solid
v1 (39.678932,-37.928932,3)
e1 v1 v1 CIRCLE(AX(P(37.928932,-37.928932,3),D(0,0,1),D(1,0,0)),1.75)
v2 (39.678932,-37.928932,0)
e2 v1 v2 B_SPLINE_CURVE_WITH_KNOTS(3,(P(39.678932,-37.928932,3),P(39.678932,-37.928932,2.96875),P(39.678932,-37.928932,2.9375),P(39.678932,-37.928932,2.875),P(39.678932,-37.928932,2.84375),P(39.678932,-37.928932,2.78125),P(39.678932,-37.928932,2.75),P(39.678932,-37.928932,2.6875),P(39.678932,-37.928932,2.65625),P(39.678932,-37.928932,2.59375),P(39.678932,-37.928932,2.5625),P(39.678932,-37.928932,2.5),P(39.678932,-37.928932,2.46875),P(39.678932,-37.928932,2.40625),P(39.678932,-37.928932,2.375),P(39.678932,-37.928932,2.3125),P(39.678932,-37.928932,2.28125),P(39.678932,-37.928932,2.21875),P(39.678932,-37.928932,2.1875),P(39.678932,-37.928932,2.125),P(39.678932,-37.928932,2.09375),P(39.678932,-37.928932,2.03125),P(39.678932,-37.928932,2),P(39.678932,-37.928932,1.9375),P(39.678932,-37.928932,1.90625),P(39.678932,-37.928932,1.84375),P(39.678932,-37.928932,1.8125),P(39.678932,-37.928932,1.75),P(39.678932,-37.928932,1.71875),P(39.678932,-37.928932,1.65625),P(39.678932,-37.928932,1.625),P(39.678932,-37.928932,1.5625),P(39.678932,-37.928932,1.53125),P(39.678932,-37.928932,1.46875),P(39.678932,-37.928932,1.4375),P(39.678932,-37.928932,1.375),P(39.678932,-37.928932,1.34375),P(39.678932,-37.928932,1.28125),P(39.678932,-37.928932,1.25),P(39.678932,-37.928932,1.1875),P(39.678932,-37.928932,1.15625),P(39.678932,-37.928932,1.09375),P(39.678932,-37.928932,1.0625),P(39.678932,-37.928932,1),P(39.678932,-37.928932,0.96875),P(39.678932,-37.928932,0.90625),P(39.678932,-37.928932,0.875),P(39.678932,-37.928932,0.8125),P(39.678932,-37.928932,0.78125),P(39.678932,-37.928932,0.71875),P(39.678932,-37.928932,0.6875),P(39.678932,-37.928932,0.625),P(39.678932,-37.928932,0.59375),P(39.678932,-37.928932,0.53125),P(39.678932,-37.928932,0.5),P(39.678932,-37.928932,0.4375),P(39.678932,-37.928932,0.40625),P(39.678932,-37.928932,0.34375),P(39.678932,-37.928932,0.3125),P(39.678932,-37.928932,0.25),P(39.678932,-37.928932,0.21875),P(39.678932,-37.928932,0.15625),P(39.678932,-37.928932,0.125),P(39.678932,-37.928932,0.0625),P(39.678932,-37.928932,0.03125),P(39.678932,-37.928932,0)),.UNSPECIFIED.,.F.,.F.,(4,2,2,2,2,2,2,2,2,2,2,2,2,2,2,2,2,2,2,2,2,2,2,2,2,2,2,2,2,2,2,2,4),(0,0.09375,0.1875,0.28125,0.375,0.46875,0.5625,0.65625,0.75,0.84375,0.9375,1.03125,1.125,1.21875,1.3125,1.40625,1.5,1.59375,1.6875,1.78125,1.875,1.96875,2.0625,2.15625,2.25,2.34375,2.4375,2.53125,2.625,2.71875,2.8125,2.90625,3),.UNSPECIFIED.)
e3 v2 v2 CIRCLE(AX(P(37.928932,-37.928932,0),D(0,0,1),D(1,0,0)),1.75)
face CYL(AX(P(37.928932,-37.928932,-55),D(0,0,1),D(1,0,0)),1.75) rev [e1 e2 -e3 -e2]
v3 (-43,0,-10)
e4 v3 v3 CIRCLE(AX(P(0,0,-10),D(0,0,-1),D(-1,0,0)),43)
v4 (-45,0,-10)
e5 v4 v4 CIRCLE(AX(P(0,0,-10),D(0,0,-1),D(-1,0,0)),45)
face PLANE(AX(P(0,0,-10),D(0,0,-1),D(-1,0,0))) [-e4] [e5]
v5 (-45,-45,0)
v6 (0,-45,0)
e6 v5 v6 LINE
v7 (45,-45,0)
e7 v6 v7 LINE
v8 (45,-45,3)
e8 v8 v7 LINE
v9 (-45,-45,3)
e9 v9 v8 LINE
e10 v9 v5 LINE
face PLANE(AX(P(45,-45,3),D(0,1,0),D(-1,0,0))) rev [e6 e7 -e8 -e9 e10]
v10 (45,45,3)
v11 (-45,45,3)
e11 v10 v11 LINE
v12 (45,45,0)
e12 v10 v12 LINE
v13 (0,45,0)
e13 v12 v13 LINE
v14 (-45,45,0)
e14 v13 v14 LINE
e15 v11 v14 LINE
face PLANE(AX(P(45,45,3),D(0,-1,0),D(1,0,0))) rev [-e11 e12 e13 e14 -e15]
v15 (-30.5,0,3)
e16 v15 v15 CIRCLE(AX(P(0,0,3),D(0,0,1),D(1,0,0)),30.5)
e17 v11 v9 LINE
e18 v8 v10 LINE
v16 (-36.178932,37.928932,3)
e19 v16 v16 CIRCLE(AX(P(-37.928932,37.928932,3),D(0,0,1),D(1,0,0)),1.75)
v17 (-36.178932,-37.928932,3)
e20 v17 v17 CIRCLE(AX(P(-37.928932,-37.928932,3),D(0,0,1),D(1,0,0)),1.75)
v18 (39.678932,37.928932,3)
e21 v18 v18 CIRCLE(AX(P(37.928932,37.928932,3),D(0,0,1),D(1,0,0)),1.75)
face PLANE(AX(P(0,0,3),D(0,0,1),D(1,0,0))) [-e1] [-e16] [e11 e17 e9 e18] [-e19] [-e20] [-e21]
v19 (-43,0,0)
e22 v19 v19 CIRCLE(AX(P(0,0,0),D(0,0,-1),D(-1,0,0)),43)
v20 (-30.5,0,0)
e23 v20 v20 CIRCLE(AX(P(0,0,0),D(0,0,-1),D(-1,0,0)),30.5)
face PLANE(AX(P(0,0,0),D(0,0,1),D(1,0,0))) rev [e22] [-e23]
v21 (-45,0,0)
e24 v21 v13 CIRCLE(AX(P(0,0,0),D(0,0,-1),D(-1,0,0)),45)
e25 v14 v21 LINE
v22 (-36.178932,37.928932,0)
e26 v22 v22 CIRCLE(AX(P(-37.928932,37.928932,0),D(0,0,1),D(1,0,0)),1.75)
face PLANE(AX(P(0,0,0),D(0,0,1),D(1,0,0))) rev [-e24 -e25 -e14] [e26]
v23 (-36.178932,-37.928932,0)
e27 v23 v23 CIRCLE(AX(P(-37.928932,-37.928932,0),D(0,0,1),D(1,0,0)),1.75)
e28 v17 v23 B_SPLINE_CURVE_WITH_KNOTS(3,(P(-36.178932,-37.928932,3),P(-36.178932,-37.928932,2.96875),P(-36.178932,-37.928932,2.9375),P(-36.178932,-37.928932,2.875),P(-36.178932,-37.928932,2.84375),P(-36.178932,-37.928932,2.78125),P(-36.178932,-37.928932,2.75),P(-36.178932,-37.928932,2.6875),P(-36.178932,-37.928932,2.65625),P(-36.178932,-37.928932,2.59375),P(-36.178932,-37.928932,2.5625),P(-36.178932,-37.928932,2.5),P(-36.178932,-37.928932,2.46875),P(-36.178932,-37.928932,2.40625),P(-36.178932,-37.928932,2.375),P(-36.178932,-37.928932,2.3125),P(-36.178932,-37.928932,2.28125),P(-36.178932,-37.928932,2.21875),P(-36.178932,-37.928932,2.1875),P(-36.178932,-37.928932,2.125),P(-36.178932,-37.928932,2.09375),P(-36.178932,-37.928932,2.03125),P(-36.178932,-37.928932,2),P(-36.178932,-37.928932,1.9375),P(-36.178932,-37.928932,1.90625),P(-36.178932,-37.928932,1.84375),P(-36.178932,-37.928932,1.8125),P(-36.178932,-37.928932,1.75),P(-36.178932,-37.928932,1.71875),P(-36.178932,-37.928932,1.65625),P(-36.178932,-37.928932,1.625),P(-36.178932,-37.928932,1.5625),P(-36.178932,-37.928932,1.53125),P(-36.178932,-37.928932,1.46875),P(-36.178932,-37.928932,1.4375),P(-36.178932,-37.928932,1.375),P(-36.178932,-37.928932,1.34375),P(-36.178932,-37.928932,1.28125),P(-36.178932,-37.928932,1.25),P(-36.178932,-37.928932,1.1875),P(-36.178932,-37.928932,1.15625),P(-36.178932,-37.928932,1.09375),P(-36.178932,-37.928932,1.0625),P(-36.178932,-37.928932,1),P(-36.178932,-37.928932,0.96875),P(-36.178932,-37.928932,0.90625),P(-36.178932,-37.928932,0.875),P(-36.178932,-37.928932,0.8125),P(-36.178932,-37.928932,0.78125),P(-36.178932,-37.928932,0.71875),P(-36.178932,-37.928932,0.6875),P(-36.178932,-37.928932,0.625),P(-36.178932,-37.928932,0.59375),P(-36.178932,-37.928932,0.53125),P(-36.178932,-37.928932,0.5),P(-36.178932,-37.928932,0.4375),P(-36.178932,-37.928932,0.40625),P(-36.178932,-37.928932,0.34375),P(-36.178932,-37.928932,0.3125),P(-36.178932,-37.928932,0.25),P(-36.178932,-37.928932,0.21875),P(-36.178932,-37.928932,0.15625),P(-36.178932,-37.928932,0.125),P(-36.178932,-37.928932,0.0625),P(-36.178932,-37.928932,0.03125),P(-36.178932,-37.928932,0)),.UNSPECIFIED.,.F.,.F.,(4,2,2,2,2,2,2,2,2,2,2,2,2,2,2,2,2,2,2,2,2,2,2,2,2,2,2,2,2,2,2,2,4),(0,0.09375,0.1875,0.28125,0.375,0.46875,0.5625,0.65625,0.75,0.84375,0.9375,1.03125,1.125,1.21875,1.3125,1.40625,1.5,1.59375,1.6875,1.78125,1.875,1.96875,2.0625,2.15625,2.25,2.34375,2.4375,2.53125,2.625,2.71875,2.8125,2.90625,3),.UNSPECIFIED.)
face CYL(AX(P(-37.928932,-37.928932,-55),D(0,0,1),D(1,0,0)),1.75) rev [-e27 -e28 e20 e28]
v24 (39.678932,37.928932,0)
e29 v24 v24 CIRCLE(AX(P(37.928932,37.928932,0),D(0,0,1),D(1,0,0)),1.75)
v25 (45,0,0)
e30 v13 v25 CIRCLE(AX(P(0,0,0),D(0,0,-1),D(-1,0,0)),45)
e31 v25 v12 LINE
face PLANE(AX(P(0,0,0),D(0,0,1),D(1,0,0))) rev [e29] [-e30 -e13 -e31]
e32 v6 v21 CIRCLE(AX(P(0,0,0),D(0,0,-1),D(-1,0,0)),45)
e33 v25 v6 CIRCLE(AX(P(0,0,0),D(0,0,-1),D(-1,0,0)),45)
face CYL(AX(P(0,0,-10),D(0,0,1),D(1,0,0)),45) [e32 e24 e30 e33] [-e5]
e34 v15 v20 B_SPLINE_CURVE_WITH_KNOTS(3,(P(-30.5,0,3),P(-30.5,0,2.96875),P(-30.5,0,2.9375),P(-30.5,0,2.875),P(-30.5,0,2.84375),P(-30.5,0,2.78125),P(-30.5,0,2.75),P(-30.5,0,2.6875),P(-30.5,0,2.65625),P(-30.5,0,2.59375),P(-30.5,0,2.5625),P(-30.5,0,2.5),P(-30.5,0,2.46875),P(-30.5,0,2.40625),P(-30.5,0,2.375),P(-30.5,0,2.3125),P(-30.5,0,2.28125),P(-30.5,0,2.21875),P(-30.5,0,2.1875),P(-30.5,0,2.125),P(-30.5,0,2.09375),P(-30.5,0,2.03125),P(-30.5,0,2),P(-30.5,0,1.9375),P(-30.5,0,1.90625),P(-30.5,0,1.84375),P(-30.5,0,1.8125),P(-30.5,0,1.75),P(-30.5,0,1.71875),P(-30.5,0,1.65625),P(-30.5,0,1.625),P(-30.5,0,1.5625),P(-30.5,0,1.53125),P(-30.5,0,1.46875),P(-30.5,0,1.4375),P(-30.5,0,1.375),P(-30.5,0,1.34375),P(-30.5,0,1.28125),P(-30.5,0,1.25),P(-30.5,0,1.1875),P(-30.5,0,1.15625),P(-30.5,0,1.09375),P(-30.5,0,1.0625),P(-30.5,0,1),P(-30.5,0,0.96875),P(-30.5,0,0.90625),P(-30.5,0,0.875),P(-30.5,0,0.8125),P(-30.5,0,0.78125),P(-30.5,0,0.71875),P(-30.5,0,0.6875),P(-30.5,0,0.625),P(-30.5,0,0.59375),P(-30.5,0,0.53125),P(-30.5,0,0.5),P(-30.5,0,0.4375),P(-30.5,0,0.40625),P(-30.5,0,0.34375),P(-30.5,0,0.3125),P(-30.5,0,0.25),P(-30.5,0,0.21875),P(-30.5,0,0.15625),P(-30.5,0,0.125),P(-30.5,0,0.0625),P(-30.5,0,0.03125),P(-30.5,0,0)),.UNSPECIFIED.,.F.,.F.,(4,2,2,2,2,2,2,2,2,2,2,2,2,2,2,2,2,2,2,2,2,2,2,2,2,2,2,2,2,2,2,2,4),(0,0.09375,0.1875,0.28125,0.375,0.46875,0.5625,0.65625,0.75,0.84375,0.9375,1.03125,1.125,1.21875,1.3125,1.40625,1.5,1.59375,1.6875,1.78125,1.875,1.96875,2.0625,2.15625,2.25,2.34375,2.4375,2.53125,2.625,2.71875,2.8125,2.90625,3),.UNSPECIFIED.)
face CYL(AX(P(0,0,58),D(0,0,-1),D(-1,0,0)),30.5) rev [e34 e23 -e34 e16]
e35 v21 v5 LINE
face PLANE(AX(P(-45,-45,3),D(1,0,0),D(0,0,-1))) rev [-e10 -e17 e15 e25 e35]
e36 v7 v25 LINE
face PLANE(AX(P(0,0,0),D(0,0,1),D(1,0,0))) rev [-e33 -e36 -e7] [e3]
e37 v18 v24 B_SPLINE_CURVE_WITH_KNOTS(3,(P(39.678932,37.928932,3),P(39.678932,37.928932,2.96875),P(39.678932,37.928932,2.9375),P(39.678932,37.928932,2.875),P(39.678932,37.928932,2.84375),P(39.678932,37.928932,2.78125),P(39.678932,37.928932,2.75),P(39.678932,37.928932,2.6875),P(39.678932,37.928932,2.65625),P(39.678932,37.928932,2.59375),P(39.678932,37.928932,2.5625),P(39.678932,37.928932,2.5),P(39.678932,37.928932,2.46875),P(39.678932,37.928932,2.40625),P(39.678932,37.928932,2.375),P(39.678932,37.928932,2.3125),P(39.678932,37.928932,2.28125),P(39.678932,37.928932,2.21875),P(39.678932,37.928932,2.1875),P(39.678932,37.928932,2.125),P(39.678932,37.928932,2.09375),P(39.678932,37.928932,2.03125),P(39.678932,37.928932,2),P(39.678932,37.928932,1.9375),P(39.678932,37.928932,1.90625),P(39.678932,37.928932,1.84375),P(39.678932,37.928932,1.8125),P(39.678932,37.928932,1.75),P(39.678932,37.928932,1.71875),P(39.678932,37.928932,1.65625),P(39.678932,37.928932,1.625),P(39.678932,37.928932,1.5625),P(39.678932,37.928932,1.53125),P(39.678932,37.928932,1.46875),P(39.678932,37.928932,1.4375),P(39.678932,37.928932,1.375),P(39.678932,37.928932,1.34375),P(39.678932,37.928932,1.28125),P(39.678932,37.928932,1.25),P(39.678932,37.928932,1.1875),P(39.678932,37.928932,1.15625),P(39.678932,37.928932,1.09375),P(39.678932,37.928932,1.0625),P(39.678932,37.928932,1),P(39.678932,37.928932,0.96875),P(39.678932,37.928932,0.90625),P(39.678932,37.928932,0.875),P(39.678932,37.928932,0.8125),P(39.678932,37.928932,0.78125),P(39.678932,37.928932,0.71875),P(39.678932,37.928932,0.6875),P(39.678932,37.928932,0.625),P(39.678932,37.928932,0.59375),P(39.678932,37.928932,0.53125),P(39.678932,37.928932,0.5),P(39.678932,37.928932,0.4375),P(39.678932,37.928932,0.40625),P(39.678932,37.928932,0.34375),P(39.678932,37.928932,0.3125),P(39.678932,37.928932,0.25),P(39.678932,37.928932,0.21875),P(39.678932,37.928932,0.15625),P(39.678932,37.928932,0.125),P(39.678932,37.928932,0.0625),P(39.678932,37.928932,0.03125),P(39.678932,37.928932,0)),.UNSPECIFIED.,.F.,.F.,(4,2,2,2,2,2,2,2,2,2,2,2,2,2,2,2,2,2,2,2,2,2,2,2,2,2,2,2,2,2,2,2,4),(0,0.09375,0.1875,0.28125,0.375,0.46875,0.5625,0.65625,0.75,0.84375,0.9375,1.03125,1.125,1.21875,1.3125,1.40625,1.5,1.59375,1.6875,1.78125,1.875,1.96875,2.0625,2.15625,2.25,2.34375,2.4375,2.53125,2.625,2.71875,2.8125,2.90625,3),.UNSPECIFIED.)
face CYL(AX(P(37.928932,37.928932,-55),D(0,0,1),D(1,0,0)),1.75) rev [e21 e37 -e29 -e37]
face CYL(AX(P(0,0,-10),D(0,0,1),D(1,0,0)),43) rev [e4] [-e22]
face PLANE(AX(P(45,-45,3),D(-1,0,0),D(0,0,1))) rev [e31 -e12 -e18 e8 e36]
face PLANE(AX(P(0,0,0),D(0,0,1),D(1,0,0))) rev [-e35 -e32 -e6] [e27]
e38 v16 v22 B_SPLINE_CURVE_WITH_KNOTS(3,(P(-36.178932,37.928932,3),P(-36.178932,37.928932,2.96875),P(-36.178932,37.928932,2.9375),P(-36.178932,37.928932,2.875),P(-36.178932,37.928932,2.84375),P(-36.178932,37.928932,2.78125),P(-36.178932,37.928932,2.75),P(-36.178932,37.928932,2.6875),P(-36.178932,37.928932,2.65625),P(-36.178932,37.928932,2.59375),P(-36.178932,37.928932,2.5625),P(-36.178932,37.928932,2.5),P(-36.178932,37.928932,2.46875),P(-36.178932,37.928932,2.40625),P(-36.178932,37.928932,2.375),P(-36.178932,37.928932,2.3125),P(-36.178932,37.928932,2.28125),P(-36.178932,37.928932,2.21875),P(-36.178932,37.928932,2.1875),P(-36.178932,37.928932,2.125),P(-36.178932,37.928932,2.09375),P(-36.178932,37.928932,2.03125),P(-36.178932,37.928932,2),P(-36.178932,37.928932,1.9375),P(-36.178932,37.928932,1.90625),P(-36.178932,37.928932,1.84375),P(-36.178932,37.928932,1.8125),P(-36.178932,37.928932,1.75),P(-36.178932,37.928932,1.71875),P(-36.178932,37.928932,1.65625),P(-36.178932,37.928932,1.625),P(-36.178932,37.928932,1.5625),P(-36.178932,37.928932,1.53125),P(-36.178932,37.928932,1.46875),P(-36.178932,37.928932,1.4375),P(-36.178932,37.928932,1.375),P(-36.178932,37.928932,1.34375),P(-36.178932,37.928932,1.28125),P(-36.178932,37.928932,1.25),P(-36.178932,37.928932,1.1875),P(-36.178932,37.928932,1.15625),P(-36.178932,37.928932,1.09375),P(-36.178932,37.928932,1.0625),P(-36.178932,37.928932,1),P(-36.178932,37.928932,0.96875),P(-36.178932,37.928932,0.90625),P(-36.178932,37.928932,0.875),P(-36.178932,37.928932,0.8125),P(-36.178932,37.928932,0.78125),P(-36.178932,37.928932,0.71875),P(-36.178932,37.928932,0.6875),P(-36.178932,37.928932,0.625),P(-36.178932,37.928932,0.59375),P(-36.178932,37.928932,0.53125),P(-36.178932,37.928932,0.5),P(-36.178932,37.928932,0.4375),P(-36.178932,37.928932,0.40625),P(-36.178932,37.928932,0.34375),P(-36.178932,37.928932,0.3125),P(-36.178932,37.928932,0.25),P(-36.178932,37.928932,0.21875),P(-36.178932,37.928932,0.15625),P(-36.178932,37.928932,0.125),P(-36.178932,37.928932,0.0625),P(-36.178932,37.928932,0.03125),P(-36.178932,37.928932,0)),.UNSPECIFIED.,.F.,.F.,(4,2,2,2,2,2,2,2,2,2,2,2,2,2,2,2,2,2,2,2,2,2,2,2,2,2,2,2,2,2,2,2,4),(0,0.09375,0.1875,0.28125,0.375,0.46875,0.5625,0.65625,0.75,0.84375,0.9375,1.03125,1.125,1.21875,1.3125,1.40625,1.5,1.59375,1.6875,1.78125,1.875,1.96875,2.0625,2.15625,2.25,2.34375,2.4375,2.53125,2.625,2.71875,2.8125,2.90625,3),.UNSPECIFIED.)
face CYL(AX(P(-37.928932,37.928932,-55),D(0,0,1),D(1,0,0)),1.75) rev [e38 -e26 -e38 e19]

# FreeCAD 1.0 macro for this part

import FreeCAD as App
import Part
import Sketcher


def add_polygon(sketch, points):
    """Adds a closed chain of lines whose ends are joined by coincident constraints."""
    first, n = sketch.GeometryCount, len(points)
    for a, b in zip(points, points[1:] + points[:1]):
        sketch.addGeometry(Part.LineSegment(App.Vector(*a, 0), App.Vector(*b, 0)), False)
    for i in range(n):
        sketch.addConstraint(Sketcher.Constraint("Coincident", first + i, 2, first + (i + 1) % n, 1))

doc = App.newDocument("Part")
params = doc.addObject("Spreadsheet::Sheet", "Params")
for row, (alias, value) in enumerate([
    ("sketch1_width", "90 mm"),
    ("pad1_length", "3 mm"),
    ("sketch2_diameter", "90 mm"),
    ("sketch2_diameter2", "86 mm"),
    ("pad2_length", "10 mm"),
    ("sketch3_diameter", "61 mm"),
    ("pocket1_length", "58 mm"),
    ("sketch4_diameter", "3.5 mm"),
    ("pocket2_length", "58 mm"),
], start=1):
    params.set(f"A{row}", alias)
    params.set(f"B{row}", "=" + value)
    params.setAlias(f"B{row}", alias)

body = doc.addObject("PartDesign::Body", "Body")

# Sketch on XY plane
sketch1 = body.newObject("Sketcher::SketchObject", "Sketch")
sketch1.AttachmentSupport = (doc.getObject("XY_Plane"), [""])
sketch1.MapMode = "FlatFace"
add_polygon(sketch1, [(-45, 45), (-45, -45), (45, -45), (45, 45)])  # lines 0-3
sketch1.addConstraint(Sketcher.Constraint("Vertical", 0))
sketch1.addConstraint(Sketcher.Constraint("Horizontal", 1))
sketch1.addConstraint(Sketcher.Constraint("Vertical", 2))
sketch1.addConstraint(Sketcher.Constraint("Horizontal", 3))
sketch1.addConstraint(Sketcher.Constraint("Symmetric", 0, 2, 2, 2, -1, 1))
sketch1.addConstraint(Sketcher.Constraint("Equal", 3, 0))
sketch1.addConstraint(Sketcher.Constraint("DistanceX", 1, 1, 1, 2, 90.0))
sketch1.setExpression("Constraints[10]", "Params.sketch1_width")
pad1 = body.newObject("PartDesign::Pad", "Pad")
pad1.Profile = sketch1
pad1.setExpression("Length", "Params.pad1_length")

# Sketch on XY plane
sketch2 = body.newObject("Sketcher::SketchObject", "Sketch001")
sketch2.AttachmentSupport = (doc.getObject("XY_Plane"), [""])
sketch2.MapMode = "FlatFace"
sketch2.addGeometry(Part.Circle(App.Vector(0, 0, 0), App.Vector(0, 0, 1), 45), False)
sketch2.addGeometry(Part.Circle(App.Vector(0, 0, 0), App.Vector(0, 0, 1), 43), False)
sketch2.addConstraint(Sketcher.Constraint("Coincident", 0, 3, -1, 1))
sketch2.addConstraint(Sketcher.Constraint("Coincident", 1, 3, -1, 1))
sketch2.addConstraint(Sketcher.Constraint("Diameter", 0, 90.0))
sketch2.addConstraint(Sketcher.Constraint("Diameter", 1, 86.0))
sketch2.setExpression("Constraints[2]", "Params.sketch2_diameter")
sketch2.setExpression("Constraints[3]", "Params.sketch2_diameter2")
pad2 = body.newObject("PartDesign::Pad", "Pad001")
pad2.Profile = sketch2
pad2.setExpression("Length", "Params.pad2_length")
pad2.Reversed = True

# Sketch on XY plane
sketch3 = body.newObject("Sketcher::SketchObject", "Sketch002")
sketch3.AttachmentSupport = (doc.getObject("XY_Plane"), [""])
sketch3.MapMode = "FlatFace"
sketch3.addGeometry(Part.Circle(App.Vector(0, 0, 0), App.Vector(0, 0, 1), 30), False)
sketch3.addConstraint(Sketcher.Constraint("Coincident", 0, 3, -1, 1))
sketch3.addConstraint(Sketcher.Constraint("Diameter", 0, 61.0))
sketch3.setExpression("Constraints[1]", "Params.sketch3_diameter")
pocket1 = body.newObject("PartDesign::Pocket", "Pocket")
pocket1.Profile = sketch3
pocket1.setExpression("Length", "Params.pocket1_length")
pocket1.Reversed = True

# Sketch on XY plane
sketch4 = body.newObject("Sketcher::SketchObject", "Sketch003")
sketch4.AttachmentSupport = (doc.getObject("XY_Plane"), [""])
sketch4.MapMode = "FlatFace"
sketch4.AttachmentOffset = App.Placement(App.Vector(0, 0, 3), App.Rotation())
sketch4.addGeometry(Part.Circle(App.Vector(-37.9, 37.9, 0), App.Vector(0, 0, 1), 1.8), False)
sketch4.addGeometry(Part.Circle(App.Vector(37.9, 37.9, 0), App.Vector(0, 0, 1), 1.8), False)
sketch4.addGeometry(Part.Circle(App.Vector(37.9, -37.9, 0), App.Vector(0, 0, 1), 1.8), False)
sketch4.addGeometry(Part.Circle(App.Vector(-37.9, -37.9, 0), App.Vector(0, 0, 1), 1.8), False)
sketch4.addConstraint(Sketcher.Constraint("Equal", 0, 1))
sketch4.addConstraint(Sketcher.Constraint("Equal", 1, 2))
sketch4.addConstraint(Sketcher.Constraint("Equal", 2, 3))
sketch4.addConstraint(Sketcher.Constraint("Symmetric", 0, 3, 2, 3, -1, 1))
sketch4.addConstraint(Sketcher.Constraint("Symmetric", 1, 3, 3, 3, -1, 1))
sketch4.addConstraint(Sketcher.Constraint("Symmetric", 0, 3, 1, 3, -2))
sketch4.addConstraint(Sketcher.Constraint("Diameter", 0, 3.5))
sketch4.addConstraint(Sketcher.Constraint("DistanceX", 0, 3, -1, 1, 37.928932))
sketch4.addConstraint(Sketcher.Constraint("DistanceY", -1, 1, 0, 3, 37.928932))
sketch4.setExpression("Constraints[6]", "Params.sketch4_diameter")
pocket2 = body.newObject("PartDesign::Pocket", "Pocket001")
pocket2.Profile = sketch4
pocket2.setExpression("Length", "Params.pocket2_length")

doc.recompute()
